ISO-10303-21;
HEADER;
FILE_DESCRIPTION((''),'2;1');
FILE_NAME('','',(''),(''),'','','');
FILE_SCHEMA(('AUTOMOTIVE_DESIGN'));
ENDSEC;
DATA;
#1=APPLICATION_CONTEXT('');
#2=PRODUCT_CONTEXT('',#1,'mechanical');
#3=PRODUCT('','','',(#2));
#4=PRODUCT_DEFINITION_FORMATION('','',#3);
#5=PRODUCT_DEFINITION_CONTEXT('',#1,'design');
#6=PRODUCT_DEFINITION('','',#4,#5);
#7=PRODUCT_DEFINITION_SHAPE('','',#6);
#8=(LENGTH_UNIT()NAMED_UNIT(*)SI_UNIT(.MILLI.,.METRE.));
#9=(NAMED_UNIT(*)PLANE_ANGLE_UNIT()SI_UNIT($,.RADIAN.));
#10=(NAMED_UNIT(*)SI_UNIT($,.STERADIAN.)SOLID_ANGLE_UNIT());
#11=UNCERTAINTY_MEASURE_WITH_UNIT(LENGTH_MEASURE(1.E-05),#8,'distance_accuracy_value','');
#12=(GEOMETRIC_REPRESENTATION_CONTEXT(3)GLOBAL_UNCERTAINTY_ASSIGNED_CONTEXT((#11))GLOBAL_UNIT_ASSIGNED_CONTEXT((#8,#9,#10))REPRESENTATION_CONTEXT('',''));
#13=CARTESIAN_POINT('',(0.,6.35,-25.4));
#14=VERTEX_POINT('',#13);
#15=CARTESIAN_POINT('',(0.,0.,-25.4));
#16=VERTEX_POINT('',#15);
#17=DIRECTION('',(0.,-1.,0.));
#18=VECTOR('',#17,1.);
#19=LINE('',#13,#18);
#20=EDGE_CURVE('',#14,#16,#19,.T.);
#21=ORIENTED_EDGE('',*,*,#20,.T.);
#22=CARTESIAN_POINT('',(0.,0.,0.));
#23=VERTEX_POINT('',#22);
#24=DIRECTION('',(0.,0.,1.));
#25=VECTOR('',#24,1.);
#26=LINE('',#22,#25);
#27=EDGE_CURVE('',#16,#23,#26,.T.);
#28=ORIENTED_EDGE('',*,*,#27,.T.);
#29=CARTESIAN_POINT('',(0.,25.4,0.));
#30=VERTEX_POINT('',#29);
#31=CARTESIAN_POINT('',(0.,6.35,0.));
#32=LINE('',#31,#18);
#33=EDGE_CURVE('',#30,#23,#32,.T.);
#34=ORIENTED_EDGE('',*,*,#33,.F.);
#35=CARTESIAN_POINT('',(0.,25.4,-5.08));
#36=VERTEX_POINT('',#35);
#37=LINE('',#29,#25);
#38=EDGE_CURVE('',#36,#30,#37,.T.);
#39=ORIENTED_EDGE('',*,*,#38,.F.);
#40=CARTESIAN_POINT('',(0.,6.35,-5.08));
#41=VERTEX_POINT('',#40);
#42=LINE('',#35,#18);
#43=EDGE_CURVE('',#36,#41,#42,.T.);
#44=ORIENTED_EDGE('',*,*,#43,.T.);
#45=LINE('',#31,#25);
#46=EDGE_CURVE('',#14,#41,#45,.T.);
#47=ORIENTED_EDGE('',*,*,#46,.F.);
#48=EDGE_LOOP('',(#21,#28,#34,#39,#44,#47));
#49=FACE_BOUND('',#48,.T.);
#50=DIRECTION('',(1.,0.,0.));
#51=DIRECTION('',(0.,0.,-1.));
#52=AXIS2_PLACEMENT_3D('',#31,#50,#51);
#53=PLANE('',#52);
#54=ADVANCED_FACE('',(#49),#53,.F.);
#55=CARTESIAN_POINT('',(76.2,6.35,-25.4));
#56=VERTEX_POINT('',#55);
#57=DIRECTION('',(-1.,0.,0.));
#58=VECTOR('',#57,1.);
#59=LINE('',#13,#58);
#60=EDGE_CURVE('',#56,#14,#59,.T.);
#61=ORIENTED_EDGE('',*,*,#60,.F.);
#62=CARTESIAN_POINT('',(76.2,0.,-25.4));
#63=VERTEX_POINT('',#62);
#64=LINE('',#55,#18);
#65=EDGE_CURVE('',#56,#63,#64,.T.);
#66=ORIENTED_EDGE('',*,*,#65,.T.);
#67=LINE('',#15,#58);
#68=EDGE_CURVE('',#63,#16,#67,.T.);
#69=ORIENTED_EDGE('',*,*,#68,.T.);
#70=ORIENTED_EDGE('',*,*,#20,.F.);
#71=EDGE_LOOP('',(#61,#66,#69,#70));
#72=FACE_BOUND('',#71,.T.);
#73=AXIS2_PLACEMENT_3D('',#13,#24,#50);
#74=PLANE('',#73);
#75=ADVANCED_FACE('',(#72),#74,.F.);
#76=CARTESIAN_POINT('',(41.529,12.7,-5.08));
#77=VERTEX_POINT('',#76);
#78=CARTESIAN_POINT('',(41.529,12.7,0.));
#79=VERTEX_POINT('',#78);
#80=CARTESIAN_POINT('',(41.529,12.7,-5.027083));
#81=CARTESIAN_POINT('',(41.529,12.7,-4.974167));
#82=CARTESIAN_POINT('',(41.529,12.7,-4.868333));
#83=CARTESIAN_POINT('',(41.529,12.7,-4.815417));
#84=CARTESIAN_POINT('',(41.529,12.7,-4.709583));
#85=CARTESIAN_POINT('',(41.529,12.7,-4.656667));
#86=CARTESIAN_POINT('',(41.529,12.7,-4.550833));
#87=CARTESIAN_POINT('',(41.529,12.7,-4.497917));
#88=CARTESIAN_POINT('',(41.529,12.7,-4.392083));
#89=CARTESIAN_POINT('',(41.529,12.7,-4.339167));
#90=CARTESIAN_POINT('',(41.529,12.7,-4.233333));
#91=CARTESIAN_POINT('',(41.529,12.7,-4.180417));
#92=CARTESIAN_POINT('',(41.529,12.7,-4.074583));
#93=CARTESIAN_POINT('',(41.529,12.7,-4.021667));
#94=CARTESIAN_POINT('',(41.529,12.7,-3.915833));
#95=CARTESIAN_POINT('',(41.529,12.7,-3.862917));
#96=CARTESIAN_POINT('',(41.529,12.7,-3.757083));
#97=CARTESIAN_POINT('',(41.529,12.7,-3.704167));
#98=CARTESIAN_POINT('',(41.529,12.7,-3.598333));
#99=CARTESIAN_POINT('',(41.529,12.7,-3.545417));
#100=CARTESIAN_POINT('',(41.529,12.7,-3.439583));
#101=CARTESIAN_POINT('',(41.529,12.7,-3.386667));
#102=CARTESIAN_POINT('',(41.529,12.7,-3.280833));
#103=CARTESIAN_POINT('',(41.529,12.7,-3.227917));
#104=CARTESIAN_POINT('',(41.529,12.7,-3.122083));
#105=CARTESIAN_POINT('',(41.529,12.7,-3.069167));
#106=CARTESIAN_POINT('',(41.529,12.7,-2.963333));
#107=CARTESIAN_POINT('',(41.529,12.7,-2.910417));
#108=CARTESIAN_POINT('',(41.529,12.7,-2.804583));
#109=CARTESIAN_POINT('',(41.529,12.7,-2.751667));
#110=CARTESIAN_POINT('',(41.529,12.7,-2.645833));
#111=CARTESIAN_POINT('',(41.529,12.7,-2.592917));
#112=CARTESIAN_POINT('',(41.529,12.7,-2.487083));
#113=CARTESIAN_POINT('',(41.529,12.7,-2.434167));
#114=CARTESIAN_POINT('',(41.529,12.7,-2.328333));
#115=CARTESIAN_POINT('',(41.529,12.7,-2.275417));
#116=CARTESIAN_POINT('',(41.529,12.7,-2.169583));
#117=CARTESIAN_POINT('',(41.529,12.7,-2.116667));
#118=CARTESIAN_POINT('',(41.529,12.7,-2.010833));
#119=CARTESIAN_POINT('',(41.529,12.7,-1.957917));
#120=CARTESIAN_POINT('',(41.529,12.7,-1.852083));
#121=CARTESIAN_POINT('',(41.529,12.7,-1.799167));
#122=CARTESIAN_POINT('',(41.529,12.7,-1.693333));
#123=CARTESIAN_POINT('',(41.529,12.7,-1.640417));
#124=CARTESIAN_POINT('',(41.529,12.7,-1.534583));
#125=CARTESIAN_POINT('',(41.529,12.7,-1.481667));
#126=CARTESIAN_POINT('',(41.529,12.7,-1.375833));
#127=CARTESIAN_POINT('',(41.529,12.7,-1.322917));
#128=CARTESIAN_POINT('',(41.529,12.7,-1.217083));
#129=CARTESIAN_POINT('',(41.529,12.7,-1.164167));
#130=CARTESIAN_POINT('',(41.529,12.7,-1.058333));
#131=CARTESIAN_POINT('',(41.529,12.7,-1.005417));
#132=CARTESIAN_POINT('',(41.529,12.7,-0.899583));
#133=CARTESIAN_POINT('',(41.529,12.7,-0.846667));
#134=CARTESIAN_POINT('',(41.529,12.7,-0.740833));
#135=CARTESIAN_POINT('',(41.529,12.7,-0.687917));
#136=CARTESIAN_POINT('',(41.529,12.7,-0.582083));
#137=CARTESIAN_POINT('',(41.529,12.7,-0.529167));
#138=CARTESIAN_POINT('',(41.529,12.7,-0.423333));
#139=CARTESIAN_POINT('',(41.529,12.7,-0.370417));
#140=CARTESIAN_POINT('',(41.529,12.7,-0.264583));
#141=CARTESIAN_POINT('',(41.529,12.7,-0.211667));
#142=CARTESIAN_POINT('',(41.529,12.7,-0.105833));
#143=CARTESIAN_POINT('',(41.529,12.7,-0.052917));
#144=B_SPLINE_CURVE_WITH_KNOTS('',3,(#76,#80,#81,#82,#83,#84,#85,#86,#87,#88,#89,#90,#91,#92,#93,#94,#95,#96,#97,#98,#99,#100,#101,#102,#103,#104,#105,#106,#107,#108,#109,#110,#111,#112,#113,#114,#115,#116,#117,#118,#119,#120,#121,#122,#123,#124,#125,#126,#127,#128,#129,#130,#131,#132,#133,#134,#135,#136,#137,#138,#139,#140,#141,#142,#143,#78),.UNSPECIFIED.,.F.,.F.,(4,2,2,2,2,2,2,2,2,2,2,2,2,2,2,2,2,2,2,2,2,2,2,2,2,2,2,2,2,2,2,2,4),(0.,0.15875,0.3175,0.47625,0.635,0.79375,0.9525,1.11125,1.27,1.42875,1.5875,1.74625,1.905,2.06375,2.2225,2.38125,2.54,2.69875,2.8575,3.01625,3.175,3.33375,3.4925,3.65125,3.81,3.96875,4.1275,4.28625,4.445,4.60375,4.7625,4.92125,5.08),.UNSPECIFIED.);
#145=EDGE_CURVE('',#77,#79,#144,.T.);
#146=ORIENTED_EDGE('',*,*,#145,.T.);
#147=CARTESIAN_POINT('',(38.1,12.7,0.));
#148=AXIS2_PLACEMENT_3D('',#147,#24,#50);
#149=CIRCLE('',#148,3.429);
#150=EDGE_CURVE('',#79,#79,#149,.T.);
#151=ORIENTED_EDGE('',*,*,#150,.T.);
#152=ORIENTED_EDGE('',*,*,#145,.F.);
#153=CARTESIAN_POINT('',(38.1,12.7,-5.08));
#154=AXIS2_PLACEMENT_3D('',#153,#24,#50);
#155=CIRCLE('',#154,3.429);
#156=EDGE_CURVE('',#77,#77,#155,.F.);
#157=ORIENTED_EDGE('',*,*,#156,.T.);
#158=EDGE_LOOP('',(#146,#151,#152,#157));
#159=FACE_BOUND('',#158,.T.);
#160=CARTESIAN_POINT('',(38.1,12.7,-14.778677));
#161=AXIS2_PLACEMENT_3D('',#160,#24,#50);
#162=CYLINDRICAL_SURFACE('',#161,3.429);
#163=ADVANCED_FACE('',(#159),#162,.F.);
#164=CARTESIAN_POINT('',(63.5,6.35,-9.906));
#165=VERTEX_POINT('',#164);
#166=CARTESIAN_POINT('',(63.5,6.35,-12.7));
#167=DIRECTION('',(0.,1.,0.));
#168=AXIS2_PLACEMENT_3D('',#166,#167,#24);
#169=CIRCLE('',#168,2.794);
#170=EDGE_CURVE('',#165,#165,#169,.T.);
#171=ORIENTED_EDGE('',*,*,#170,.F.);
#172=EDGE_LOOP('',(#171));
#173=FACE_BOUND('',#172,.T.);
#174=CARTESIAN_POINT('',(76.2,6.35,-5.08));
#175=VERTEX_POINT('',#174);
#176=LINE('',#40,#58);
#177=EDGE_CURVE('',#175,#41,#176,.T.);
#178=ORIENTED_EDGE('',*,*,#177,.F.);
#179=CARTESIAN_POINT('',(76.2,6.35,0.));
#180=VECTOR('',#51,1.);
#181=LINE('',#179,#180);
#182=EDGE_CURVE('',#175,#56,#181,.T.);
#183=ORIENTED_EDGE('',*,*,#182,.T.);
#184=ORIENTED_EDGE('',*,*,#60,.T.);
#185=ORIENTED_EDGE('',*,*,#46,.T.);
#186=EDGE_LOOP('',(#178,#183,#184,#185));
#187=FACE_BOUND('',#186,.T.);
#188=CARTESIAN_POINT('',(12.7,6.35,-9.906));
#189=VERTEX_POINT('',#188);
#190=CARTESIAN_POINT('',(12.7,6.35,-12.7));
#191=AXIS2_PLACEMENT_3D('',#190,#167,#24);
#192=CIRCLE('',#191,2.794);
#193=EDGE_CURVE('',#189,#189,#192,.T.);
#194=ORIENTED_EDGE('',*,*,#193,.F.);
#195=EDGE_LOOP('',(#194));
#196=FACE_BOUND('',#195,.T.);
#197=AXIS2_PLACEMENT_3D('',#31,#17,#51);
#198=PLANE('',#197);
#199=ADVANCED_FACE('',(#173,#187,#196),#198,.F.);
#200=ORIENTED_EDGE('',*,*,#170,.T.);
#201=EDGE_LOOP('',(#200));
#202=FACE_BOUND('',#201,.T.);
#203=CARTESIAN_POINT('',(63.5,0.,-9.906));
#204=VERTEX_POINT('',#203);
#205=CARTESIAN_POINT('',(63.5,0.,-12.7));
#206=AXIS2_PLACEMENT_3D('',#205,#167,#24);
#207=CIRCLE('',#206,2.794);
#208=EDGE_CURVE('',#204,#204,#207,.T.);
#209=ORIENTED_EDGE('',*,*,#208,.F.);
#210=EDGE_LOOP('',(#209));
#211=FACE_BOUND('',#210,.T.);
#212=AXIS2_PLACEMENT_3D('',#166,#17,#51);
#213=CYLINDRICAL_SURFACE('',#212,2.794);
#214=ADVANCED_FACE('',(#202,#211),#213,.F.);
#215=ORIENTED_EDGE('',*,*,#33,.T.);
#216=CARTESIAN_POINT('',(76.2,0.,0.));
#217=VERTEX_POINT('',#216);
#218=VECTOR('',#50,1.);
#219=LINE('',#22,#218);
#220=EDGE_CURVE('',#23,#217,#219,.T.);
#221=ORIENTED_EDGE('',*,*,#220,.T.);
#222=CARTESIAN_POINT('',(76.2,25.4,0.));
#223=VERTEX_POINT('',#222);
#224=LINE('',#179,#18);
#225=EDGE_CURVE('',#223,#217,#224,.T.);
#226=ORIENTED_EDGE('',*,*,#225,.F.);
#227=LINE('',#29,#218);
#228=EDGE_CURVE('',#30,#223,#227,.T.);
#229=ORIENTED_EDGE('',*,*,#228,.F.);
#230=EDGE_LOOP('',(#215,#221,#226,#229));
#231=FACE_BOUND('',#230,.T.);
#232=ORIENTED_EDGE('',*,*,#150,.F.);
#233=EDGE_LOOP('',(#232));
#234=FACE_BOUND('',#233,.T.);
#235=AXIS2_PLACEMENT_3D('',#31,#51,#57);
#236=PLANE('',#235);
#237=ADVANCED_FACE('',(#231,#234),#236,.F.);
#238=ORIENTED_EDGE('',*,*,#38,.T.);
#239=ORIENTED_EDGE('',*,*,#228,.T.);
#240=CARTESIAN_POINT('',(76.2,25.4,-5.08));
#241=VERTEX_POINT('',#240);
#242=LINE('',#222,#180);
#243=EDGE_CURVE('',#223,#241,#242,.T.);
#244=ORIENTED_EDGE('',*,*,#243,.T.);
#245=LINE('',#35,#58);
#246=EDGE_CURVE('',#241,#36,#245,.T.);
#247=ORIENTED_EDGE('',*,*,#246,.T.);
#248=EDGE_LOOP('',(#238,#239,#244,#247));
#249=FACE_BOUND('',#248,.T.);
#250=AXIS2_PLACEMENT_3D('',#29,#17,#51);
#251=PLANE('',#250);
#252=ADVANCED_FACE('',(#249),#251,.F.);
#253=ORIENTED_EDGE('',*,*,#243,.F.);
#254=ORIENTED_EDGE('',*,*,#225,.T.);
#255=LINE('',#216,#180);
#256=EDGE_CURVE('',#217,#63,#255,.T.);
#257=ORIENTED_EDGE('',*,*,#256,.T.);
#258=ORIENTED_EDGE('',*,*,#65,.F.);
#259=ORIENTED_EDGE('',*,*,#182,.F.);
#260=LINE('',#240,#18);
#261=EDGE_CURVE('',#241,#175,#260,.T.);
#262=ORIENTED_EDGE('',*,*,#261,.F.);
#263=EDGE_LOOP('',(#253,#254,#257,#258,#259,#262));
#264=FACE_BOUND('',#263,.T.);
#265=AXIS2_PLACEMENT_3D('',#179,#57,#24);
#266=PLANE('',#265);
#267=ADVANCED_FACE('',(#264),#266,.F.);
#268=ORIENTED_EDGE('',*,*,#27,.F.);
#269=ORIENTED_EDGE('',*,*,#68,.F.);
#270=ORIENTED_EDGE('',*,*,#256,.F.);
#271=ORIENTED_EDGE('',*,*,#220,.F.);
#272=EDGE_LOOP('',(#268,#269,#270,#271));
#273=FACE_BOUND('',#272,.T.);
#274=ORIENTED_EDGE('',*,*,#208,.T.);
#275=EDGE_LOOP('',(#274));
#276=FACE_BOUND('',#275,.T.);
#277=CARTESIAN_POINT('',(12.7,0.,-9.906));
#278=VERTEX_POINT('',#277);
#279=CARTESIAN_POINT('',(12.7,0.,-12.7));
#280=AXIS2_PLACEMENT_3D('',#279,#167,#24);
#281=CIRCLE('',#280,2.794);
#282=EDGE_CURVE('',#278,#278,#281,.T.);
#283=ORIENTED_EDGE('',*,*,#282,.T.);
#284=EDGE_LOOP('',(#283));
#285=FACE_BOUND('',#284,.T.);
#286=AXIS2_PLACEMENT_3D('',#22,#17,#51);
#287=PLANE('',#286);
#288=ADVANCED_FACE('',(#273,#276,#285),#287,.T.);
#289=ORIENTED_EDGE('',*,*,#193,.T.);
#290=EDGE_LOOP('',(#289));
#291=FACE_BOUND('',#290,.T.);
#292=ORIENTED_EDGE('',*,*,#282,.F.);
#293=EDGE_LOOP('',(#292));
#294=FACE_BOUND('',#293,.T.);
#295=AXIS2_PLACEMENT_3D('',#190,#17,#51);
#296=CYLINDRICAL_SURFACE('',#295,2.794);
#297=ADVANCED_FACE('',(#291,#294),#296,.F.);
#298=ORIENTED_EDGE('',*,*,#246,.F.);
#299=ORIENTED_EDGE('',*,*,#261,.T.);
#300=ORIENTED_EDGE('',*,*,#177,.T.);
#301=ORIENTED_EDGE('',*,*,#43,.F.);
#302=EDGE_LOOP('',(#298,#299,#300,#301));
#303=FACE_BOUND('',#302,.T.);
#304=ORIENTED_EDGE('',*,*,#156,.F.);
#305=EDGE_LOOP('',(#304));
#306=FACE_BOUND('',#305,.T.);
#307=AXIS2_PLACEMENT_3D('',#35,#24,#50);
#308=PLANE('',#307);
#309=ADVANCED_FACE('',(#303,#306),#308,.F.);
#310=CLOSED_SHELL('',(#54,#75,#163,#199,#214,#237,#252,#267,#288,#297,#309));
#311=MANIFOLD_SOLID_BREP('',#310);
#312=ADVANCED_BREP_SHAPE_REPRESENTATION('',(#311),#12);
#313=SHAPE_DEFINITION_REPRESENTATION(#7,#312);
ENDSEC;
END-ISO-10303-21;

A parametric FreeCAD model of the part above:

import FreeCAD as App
import Part
import Sketcher

V = App.Vector
Q = App.Units.Quantity

doc = App.newDocument("Part")
body = doc.addObject("PartDesign::Body", "Body")

sketch1 = body.newObject("Sketcher::SketchObject", "Sketch")
sketch1.AttachmentSupport = (doc.getObject("XZ_Plane"), [""])
sketch1.MapMode = "FlatFace"
sketch1.addGeometry([
    Part.LineSegment(V(0, -25.4, 0), V(0, 0, 0)),
    Part.LineSegment(V(0, 0, 0), V(76.2, 0, 0)),
    Part.LineSegment(V(76.2, 0, 0), V(76.2, -25.4, 0)),
    Part.LineSegment(V(76.2, -25.4, 0), V(0, -25.4, 0)),
    Part.Circle(V(12.7, -12.7, 0), V(0, 0, 1), 2.8),
    Part.Circle(V(63.5, -12.7, 0), V(0, 0, 1), 2.8),
], False)
sketch1.addConstraint([
    Sketcher.Constraint("Coincident", 0, 2, 1, 1),
    Sketcher.Constraint("Coincident", 1, 2, 2, 1),
    Sketcher.Constraint("Coincident", 2, 2, 3, 1),
    Sketcher.Constraint("Coincident", 3, 2, 0, 1),
    Sketcher.Constraint("Vertical", 0),
    Sketcher.Constraint("Horizontal", 1),
    Sketcher.Constraint("Vertical", 2),
    Sketcher.Constraint("Horizontal", 3),
    Sketcher.Constraint("Coincident", 0, 2, -1, 1),
    Sketcher.Constraint("Equal", 4, 5),
    Sketcher.Constraint("Horizontal", 4, 3, 5, 3),
    Sketcher.Constraint("Diameter", 4, Q("0.22 in")),
    Sketcher.Constraint("DistanceX", 1, 1, 1, 2, Q("3 in")),
    Sketcher.Constraint("DistanceY", 0, 1, 0, 2, Q("1 in")),
    Sketcher.Constraint("DistanceX", 4, 3, 5, 3, Q("2 in")),
    Sketcher.Constraint("DistanceX", -1, 1, 4, 3, Q("0.5 in")),
    Sketcher.Constraint("DistanceY", 4, 3, -1, 1, Q("0.5 in")),
])
pad1 = body.newObject("PartDesign::Pad", "Pad")
pad1.Profile = sketch1
pad1.Length = Q("0.25 in")
pad1.Reversed = True

sketch2 = body.newObject("Sketcher::SketchObject", "Sketch001")
sketch2.AttachmentSupport = (doc.getObject("XZ_Plane"), [""])
sketch2.MapMode = "FlatFace"
sketch2.AttachmentOffset = App.Placement(V(0, 0, -0.25 * 25.4), App.Rotation())
sketch2.addGeometry([
    Part.LineSegment(V(0, -5, 0), V(0, 0, 0)),
    Part.LineSegment(V(0, 0, 0), V(76, 0, 0)),
    Part.LineSegment(V(76, 0, 0), V(76, -5, 0)),
    Part.LineSegment(V(76, -5, 0), V(0, -5, 0)),
], False)
sketch2.addConstraint([
    Sketcher.Constraint("Coincident", 0, 2, 1, 1),
    Sketcher.Constraint("Coincident", 1, 2, 2, 1),
    Sketcher.Constraint("Coincident", 2, 2, 3, 1),
    Sketcher.Constraint("Coincident", 3, 2, 0, 1),
    Sketcher.Constraint("Vertical", 0),
    Sketcher.Constraint("Horizontal", 1),
    Sketcher.Constraint("Vertical", 2),
    Sketcher.Constraint("Horizontal", 3),
    Sketcher.Constraint("Coincident", 0, 2, -1, 1),
    Sketcher.Constraint("DistanceX", 1, 1, 1, 2, Q("3 in")),
    Sketcher.Constraint("DistanceY", 0, 1, 0, 2, Q("0.2 in")),
])
pad2 = body.newObject("PartDesign::Pad", "Pad001")
pad2.Profile = sketch2
pad2.Length = Q("0.75 in")
pad2.Reversed = True

sketch3 = body.newObject("Sketcher::SketchObject", "Sketch002")
sketch3.AttachmentSupport = (doc.getObject("XY_Plane"), [""])
sketch3.MapMode = "FlatFace"
sketch3.addGeometry(Part.Circle(V(38.1, 12.7, 0), V(0, 0, 1), 3.4), False)
sketch3.addConstraint([
    Sketcher.Constraint("Diameter", 0, Q("0.27 in")),
    Sketcher.Constraint("DistanceX", -1, 1, 0, 3, Q("1.5 in")),
    Sketcher.Constraint("DistanceY", -1, 1, 0, 3, Q("0.5 in")),
])
pocket1 = body.newObject("PartDesign::Pocket", "Pocket")
pocket1.Profile = sketch3
pocket1.Length = Q("0.2 in")

doc.recompute()
